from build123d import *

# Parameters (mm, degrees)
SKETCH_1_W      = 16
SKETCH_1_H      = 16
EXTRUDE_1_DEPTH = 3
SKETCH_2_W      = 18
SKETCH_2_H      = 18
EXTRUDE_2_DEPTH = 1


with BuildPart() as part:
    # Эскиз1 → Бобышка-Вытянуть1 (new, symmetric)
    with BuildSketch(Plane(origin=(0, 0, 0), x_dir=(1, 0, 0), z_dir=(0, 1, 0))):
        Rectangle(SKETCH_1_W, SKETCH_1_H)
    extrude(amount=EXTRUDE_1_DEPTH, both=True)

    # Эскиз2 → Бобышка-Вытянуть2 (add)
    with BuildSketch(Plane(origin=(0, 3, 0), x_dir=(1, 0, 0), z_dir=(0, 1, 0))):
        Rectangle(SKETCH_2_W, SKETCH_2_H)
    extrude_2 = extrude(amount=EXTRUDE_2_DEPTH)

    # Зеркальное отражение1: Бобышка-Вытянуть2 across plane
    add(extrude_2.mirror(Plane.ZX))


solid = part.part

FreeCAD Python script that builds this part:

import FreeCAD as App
import Part
import Sketcher

V = App.Vector


def add_polygon(sketch, points):
    """Adds a closed chain of lines whose ends are joined by coincident constraints."""
    first, n = sketch.GeometryCount, len(points)
    for a, b in zip(points, points[1:] + points[:1]):
        sketch.addGeometry(Part.LineSegment(App.Vector(*a, 0), App.Vector(*b, 0)), False)
    for i in range(n):
        sketch.addConstraint(Sketcher.Constraint("Coincident", first + i, 2, first + (i + 1) % n, 1))

doc = App.newDocument("Part")
params = doc.addObject("Spreadsheet::Sheet", "Params")
for row, (alias, value) in enumerate([
    ("sketch1_width", "16 mm"),
    ("pad1_length", "6 mm"),
    ("sketch2_width", "18 mm"),
    ("pad2_length", "1 mm"),
], start=1):
    params.set(f"A{row}", alias)
    params.set(f"B{row}", "=" + value)
    params.setAlias(f"B{row}", alias)

body = doc.addObject("PartDesign::Body", "Body")

# Sketch on XZ plane
sketch1 = body.newObject("Sketcher::SketchObject", "Sketch")
sketch1.AttachmentSupport = (doc.getObject("XZ_Plane"), [""])
sketch1.MapMode = "FlatFace"
add_polygon(sketch1, [(-8, -8), (-8, 8), (8, 8), (8, -8)])  # lines 0-3
sketch1.addConstraint(Sketcher.Constraint("Vertical", 0))
sketch1.addConstraint(Sketcher.Constraint("Horizontal", 1))
sketch1.addConstraint(Sketcher.Constraint("Vertical", 2))
sketch1.addConstraint(Sketcher.Constraint("Horizontal", 3))
sketch1.addConstraint(Sketcher.Constraint("Symmetric", 0, 2, 2, 2, -1, 1))
sketch1.addConstraint(Sketcher.Constraint("Equal", 3, 0))
sketch1.addConstraint(Sketcher.Constraint("DistanceX", 1, 1, 1, 2, 16.0))
sketch1.setExpression("Constraints[10]", "Params.sketch1_width")
pad1 = body.newObject("PartDesign::Pad", "Pad")
pad1.Profile = sketch1
pad1.setExpression("Length", "Params.pad1_length")
pad1.Midplane = True

# Sketch on XZ plane
sketch2 = body.newObject("Sketcher::SketchObject", "Sketch001")
sketch2.AttachmentSupport = (doc.getObject("XZ_Plane"), [""])
sketch2.MapMode = "FlatFace"
sketch2.AttachmentOffset = App.Placement(V(0, 0, -3), App.Rotation())
add_polygon(sketch2, [(-9, -9), (-9, 9), (9, 9), (9, -9)])  # lines 0-3
sketch2.addConstraint(Sketcher.Constraint("Vertical", 0))
sketch2.addConstraint(Sketcher.Constraint("Horizontal", 1))
sketch2.addConstraint(Sketcher.Constraint("Vertical", 2))
sketch2.addConstraint(Sketcher.Constraint("Horizontal", 3))
sketch2.addConstraint(Sketcher.Constraint("Symmetric", 0, 2, 2, 2, -1, 1))
sketch2.addConstraint(Sketcher.Constraint("Equal", 3, 0))
sketch2.addConstraint(Sketcher.Constraint("DistanceX", 1, 1, 1, 2, 18.0))
sketch2.setExpression("Constraints[10]", "Params.sketch2_width")
pad2 = body.newObject("PartDesign::Pad", "Pad001")
pad2.Profile = sketch2
pad2.setExpression("Length", "Params.pad2_length")
pad2.Reversed = True
doc.recompute()

mirrored = body.newObject("PartDesign::Mirrored", "Mirrored")
mirrored.Originals = [pad2]
mirrored.MirrorPlane = (doc.getObject("XZ_Plane"), [""])
body.Tip = mirrored

doc.recompute()
